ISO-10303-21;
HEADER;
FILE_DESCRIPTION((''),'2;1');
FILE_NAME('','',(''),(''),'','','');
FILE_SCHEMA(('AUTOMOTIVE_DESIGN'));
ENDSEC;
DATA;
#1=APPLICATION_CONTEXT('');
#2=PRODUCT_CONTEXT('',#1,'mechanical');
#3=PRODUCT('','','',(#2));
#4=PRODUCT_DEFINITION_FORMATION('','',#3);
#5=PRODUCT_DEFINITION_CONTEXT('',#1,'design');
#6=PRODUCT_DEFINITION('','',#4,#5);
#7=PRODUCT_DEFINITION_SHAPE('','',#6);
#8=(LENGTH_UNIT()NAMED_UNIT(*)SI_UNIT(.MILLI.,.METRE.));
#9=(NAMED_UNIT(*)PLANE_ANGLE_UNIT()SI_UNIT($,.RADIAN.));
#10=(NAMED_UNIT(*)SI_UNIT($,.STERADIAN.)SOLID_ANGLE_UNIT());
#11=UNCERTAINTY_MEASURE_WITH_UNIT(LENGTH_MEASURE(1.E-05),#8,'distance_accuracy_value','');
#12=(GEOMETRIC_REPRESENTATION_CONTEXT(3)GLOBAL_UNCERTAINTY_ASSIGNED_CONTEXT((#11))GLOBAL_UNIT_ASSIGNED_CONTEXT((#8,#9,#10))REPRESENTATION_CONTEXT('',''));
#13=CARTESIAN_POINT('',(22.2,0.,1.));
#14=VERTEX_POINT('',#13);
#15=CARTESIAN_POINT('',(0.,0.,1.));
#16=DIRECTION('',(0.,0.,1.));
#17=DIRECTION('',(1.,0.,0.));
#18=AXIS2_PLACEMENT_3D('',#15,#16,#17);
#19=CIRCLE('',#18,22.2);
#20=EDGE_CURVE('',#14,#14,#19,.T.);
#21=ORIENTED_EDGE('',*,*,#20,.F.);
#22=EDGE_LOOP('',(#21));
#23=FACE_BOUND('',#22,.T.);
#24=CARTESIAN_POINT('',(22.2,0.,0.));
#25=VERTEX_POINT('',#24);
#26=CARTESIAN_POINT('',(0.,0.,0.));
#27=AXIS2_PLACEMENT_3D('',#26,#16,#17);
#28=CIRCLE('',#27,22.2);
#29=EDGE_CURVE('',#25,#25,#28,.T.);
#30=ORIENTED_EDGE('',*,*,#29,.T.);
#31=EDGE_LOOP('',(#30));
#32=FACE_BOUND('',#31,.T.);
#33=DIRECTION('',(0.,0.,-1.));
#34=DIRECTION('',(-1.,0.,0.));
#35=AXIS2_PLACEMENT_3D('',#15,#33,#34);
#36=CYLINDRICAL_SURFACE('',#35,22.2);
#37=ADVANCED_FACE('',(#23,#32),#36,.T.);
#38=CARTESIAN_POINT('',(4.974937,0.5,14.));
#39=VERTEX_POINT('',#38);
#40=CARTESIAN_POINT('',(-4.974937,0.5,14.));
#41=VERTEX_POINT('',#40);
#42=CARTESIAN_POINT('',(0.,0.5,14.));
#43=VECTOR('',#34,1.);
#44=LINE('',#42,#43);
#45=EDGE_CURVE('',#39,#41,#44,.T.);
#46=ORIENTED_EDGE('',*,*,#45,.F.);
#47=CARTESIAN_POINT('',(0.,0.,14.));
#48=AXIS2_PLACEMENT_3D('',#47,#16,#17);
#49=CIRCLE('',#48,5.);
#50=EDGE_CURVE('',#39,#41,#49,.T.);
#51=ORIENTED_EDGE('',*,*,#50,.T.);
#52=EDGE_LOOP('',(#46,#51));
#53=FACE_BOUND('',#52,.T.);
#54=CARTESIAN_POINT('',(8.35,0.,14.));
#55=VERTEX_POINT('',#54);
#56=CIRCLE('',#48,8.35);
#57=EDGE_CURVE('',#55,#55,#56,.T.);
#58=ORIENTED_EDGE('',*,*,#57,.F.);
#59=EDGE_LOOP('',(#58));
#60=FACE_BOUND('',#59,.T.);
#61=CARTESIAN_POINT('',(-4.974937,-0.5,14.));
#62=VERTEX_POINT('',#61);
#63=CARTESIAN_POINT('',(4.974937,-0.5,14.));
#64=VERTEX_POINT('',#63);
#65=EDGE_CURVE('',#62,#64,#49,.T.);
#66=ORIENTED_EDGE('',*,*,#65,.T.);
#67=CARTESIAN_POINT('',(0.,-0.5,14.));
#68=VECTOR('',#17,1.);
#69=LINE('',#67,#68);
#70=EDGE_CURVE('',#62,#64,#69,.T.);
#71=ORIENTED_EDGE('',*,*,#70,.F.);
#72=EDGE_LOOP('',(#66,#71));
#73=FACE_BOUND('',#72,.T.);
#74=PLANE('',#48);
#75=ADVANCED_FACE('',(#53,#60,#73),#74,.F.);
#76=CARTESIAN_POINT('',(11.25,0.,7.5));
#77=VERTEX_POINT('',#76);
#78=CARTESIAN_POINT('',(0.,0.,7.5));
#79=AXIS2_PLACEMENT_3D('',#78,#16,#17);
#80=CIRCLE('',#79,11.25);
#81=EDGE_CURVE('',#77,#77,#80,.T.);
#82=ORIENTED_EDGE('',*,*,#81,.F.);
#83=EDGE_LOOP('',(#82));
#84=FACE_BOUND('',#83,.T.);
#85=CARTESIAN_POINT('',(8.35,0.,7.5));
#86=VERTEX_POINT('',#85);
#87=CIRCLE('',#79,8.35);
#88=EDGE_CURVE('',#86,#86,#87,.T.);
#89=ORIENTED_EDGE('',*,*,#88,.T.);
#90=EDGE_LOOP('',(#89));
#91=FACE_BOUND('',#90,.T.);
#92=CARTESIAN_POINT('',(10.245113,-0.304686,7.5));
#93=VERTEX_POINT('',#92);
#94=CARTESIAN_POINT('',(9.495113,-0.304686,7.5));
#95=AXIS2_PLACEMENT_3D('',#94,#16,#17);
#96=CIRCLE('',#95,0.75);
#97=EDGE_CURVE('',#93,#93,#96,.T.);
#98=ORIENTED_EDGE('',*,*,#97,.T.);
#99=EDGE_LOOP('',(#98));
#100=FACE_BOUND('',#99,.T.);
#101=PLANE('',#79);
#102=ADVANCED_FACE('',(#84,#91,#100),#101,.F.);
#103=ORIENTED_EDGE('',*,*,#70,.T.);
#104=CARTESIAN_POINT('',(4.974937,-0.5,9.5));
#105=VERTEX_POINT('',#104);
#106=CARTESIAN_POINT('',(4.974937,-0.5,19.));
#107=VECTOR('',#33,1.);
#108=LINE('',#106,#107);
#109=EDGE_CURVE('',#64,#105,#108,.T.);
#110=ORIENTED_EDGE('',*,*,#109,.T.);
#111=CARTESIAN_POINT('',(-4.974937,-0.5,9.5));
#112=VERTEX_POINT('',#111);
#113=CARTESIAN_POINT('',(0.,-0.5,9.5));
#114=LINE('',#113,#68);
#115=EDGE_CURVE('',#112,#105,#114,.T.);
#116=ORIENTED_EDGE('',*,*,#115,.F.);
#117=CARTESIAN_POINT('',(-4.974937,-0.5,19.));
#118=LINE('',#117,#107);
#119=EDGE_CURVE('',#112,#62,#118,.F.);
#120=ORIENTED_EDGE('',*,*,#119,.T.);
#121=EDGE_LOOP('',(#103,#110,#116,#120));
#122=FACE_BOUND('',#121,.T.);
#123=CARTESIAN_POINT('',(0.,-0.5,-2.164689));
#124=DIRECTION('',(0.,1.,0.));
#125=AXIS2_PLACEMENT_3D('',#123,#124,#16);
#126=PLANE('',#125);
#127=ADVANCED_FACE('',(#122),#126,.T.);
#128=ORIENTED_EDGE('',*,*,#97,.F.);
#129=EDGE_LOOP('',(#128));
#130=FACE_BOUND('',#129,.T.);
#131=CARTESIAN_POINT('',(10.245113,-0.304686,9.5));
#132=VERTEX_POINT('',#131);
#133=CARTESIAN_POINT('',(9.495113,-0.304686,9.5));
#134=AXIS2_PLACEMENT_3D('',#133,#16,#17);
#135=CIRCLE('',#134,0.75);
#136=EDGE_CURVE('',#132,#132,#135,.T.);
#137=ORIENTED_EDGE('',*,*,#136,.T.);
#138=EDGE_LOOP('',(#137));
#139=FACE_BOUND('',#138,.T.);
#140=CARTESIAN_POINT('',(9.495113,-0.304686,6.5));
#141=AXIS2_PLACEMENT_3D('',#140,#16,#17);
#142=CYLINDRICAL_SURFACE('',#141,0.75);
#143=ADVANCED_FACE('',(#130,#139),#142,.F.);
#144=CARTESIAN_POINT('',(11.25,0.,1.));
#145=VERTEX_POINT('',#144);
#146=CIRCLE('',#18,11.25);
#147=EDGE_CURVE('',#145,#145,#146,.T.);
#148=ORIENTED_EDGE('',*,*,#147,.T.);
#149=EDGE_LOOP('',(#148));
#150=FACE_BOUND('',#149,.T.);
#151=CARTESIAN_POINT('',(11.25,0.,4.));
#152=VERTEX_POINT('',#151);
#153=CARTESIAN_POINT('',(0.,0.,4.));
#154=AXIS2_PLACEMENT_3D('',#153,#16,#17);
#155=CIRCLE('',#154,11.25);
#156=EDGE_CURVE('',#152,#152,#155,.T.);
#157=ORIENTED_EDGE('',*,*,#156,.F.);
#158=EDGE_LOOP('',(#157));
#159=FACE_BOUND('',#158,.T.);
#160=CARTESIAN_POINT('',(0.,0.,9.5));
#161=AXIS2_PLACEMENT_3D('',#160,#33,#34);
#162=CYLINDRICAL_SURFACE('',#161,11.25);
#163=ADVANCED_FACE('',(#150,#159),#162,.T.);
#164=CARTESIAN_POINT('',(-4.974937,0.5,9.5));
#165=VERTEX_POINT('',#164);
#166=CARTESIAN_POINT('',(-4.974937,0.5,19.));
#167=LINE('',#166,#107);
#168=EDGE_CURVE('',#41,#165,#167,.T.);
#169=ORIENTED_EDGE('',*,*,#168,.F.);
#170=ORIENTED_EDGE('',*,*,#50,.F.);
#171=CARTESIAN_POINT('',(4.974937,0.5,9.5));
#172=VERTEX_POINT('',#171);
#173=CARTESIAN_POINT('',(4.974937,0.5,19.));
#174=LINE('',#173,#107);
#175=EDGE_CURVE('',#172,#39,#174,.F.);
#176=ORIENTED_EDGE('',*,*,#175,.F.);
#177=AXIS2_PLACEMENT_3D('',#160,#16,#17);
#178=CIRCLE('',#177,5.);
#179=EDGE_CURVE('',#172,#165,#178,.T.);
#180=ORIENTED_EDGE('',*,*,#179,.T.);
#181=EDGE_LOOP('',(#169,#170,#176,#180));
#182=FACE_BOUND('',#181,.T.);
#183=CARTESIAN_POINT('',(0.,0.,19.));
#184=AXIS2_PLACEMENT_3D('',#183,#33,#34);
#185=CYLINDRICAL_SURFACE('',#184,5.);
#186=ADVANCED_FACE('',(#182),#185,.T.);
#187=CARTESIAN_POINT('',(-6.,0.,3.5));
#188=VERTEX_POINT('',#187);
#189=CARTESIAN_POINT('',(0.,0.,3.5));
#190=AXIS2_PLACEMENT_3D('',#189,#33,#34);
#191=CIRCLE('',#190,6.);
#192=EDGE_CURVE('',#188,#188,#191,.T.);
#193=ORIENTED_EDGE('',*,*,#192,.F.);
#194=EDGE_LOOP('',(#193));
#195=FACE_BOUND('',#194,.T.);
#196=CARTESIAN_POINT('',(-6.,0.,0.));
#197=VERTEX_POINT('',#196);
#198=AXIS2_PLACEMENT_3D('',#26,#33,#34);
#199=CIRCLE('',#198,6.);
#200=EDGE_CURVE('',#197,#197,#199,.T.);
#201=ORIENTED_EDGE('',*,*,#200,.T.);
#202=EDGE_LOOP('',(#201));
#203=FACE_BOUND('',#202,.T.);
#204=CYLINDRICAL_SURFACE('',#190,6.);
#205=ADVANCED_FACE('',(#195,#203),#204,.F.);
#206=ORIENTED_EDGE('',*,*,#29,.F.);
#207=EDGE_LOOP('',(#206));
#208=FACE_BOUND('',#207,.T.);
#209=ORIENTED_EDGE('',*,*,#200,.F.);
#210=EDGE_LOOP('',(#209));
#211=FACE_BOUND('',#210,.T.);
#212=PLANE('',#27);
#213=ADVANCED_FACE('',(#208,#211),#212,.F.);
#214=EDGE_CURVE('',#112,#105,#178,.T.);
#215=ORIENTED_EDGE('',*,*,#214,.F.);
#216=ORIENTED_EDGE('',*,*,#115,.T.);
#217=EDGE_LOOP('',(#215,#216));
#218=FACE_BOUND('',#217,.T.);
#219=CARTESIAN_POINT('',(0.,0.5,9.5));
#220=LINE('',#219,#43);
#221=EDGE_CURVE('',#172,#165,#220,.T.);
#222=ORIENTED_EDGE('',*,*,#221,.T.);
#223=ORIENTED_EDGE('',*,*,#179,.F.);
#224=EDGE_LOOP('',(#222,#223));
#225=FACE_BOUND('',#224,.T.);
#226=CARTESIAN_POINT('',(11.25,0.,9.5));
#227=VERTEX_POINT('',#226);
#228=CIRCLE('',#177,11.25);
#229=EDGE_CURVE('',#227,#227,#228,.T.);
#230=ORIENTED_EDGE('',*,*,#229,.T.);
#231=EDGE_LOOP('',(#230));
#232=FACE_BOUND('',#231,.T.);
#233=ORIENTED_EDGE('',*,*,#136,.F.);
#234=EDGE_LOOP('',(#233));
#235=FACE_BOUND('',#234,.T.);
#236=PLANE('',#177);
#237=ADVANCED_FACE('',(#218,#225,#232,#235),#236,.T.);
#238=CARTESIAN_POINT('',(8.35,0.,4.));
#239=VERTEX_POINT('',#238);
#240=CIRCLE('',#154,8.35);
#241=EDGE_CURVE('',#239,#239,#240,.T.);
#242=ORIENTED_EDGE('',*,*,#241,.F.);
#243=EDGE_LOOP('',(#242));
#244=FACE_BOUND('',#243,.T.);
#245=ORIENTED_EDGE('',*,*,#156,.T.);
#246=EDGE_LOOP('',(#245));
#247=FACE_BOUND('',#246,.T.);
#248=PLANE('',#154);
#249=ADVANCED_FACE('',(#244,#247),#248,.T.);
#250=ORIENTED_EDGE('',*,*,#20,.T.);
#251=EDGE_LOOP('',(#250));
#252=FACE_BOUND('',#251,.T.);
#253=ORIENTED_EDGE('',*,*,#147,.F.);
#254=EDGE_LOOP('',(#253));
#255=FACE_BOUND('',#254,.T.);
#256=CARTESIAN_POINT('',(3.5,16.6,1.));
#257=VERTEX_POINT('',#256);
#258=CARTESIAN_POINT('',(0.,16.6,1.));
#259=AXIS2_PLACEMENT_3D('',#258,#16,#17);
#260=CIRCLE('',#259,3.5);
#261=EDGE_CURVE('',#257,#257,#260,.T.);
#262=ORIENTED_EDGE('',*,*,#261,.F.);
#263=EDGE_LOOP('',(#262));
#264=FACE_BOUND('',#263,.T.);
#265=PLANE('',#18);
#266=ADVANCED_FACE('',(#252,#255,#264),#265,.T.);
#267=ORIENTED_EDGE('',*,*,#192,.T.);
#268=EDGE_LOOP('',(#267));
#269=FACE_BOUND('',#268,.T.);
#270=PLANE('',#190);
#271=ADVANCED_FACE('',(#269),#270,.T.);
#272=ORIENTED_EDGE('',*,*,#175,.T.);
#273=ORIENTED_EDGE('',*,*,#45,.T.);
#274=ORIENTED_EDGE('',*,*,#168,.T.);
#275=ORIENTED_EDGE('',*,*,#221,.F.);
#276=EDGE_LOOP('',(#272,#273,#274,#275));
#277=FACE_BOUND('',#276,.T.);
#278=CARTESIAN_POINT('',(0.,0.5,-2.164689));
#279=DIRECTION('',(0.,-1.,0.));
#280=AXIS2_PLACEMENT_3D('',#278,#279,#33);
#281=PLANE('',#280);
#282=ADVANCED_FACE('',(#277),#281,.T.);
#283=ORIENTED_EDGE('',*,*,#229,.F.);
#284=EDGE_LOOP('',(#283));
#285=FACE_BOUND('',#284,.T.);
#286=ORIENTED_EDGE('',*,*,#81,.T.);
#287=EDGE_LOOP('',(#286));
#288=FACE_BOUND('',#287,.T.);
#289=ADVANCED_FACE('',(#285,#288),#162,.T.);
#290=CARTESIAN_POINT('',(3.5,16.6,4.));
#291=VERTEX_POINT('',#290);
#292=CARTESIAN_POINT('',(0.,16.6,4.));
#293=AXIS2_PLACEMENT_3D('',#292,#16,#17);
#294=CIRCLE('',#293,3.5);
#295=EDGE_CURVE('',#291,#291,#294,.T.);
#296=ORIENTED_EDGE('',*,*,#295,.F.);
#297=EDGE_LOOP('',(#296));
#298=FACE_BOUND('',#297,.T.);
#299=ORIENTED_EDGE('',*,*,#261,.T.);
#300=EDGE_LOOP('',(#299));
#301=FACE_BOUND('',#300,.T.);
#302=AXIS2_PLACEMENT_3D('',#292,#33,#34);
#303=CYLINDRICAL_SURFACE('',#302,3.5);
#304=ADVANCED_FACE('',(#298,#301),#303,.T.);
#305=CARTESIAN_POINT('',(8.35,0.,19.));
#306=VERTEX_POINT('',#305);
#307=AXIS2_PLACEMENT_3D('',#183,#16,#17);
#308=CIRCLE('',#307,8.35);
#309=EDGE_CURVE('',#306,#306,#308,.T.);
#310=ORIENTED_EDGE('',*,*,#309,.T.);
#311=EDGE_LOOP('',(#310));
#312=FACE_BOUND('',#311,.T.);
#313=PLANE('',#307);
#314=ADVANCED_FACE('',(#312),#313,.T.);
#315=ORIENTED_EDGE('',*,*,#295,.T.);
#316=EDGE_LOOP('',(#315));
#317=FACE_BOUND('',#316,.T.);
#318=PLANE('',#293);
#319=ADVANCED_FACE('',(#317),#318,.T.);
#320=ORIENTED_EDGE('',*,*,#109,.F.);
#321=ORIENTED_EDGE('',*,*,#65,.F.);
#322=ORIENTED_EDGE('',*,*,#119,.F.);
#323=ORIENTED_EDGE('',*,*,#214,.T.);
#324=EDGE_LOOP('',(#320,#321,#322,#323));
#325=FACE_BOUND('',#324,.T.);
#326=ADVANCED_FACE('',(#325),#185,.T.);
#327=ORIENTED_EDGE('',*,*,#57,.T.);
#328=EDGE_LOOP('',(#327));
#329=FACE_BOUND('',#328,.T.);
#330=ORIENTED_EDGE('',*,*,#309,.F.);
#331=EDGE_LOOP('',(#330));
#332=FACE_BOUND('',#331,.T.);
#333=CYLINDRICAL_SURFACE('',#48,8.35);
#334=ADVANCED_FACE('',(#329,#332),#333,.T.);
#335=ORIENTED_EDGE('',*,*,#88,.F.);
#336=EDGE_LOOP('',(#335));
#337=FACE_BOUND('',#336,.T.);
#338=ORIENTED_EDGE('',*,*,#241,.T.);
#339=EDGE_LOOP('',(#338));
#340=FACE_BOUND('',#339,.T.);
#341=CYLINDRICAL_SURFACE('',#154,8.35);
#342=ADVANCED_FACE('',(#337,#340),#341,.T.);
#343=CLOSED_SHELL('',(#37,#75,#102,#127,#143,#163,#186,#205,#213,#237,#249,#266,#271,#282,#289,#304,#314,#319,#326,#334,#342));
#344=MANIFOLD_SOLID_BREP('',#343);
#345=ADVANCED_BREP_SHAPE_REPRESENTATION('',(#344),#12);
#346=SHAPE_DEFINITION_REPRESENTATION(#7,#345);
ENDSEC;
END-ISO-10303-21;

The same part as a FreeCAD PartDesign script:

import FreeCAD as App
import Part
import Sketcher
Q = App.Units.Quantity

doc = App.newDocument("Part")
body = doc.addObject("PartDesign::Body", "Body")

# Sketch on XY plane
sketch1 = body.newObject("Sketcher::SketchObject", "Sketch")
sketch1.AttachmentSupport = (doc.getObject("XY_Plane"), [""])
sketch1.MapMode = "FlatFace"
sketch1.addGeometry(Part.Circle(App.Vector(0, 0, 0), App.Vector(0, 0, 1), 22), False)
sketch1.addConstraint(Sketcher.Constraint("Coincident", 0, 3, -1, 1))
sketch1.addConstraint(Sketcher.Constraint("Diameter", 0, Q("44.4 mm")))
pad1 = body.newObject("PartDesign::Pad", "Pad")
pad1.Profile = sketch1
pad1.Length = 1

# Sketch on XY plane
sketch2 = body.newObject("Sketcher::SketchObject", "Sketch001")
sketch2.AttachmentSupport = (doc.getObject("XY_Plane"), [""])
sketch2.MapMode = "FlatFace"
sketch2.AttachmentOffset = App.Placement(App.Vector(0, 0, 1), App.Rotation())
sketch2.addGeometry(Part.Circle(App.Vector(0, 0, 0), App.Vector(0, 0, 1), 11), False)
sketch2.addConstraint(Sketcher.Constraint("Coincident", 0, 3, -1, 1))
sketch2.addConstraint(Sketcher.Constraint("Diameter", 0, Q("22.5 mm")))
pad2 = body.newObject("PartDesign::Pad", "Pad001")
pad2.Profile = sketch2
pad2.Length = 8.5

# Sketch on XY plane
sketch3 = body.newObject("Sketcher::SketchObject", "Sketch002")
sketch3.AttachmentSupport = (doc.getObject("XY_Plane"), [""])
sketch3.MapMode = "FlatFace"
sketch3.AttachmentOffset = App.Placement(App.Vector(0, 0, 9.5), App.Rotation())
sketch3.addGeometry(Part.Circle(App.Vector(0, 0, 0), App.Vector(0, 0, 1), 5), False)
sketch3.addConstraint(Sketcher.Constraint("Coincident", 0, 3, -1, 1))
sketch3.addConstraint(Sketcher.Constraint("Diameter", 0, Q("10 mm")))
pad3 = body.newObject("PartDesign::Pad", "Pad002")
pad3.Profile = sketch3
pad3.Length = 9.5

# Sketch on XY plane
sketch4 = body.newObject("Sketcher::SketchObject", "Sketch003")
sketch4.AttachmentSupport = (doc.getObject("XY_Plane"), [""])
sketch4.MapMode = "FlatFace"
sketch4.AttachmentOffset = App.Placement(App.Vector(0, 0, 19), App.Rotation())
sketch4.addGeometry(Part.LineSegment(App.Vector(-5.8, 0.5, 0), App.Vector(-5.8, -0.5, 0)), False)
sketch4.addGeometry(Part.LineSegment(App.Vector(-5.8, -0.5, 0), App.Vector(5.8, -0.5, 0)), False)
sketch4.addGeometry(Part.LineSegment(App.Vector(5.8, -0.5, 0), App.Vector(5.8, 0.5, 0)), False)
sketch4.addGeometry(Part.LineSegment(App.Vector(5.8, 0.5, 0), App.Vector(-5.8, 0.5, 0)), False)
sketch4.addConstraint(Sketcher.Constraint("Coincident", 0, 2, 1, 1))
sketch4.addConstraint(Sketcher.Constraint("Coincident", 1, 2, 2, 1))
sketch4.addConstraint(Sketcher.Constraint("Coincident", 2, 2, 3, 1))
sketch4.addConstraint(Sketcher.Constraint("Coincident", 3, 2, 0, 1))
sketch4.addConstraint(Sketcher.Constraint("Vertical", 0))
sketch4.addConstraint(Sketcher.Constraint("Horizontal", 1))
sketch4.addConstraint(Sketcher.Constraint("Vertical", 2))
sketch4.addConstraint(Sketcher.Constraint("Horizontal", 3))
sketch4.addConstraint(Sketcher.Constraint("Symmetric", 0, 2, 2, 2, -1, 1))
sketch4.addConstraint(Sketcher.Constraint("DistanceY", 0, 2, 0, 1, Q("1 mm")))
sketch4.addConstraint(Sketcher.Constraint("DistanceX", 1, 1, 1, 2, Q("11.621746 mm")))
pocket1 = body.newObject("PartDesign::Pocket", "Pocket")
pocket1.Profile = sketch4
pocket1.Length = 9.5

# Sketch on XY plane
sketch5 = body.newObject("Sketcher::SketchObject", "Sketch004")
sketch5.AttachmentSupport = (doc.getObject("XY_Plane"), [""])
sketch5.MapMode = "FlatFace"
sketch5.AttachmentOffset = App.Placement(App.Vector(0, 0, 1), App.Rotation())
sketch5.addGeometry(Part.Circle(App.Vector(0, 16.6, 0), App.Vector(0, 0, 1), 3.5), False)
sketch5.addConstraint(Sketcher.Constraint("PointOnObject", 0, 3, -2))
sketch5.addConstraint(Sketcher.Constraint("Diameter", 0, Q("7 mm")))
sketch5.addConstraint(Sketcher.Constraint("DistanceY", -1, 1, 0, 3, Q("16.6 mm")))
pad4 = body.newObject("PartDesign::Pad", "Pad003")
pad4.Profile = sketch5
pad4.Length = 3

# Sketch on XY plane
sketch6 = body.newObject("Sketcher::SketchObject", "Sketch005")
sketch6.AttachmentSupport = (doc.getObject("XY_Plane"), [""])
sketch6.MapMode = "FlatFace"
sketch6.addGeometry(Part.Circle(App.Vector(0, 0, 0), App.Vector(0, 0, 1), 6), False)
sketch6.addConstraint(Sketcher.Constraint("Coincident", 0, 3, -1, 1))
sketch6.addConstraint(Sketcher.Constraint("Diameter", 0, Q("12 mm")))
pocket2 = body.newObject("PartDesign::Pocket", "Pocket001")
pocket2.Profile = sketch6
pocket2.Length = 3.5
pocket2.Reversed = True

# Sketch on XY plane
sketch7 = body.newObject("Sketcher::SketchObject", "Sketch006")
sketch7.AttachmentSupport = (doc.getObject("XY_Plane"), [""])
sketch7.MapMode = "FlatFace"
sketch7.AttachmentOffset = App.Placement(App.Vector(0, 0, 19), App.Rotation())
sketch7.addGeometry(Part.Circle(App.Vector(0, 0, 0), App.Vector(0, 0, 1), 8), False)
sketch7.addConstraint(Sketcher.Constraint("Coincident", 0, 3, -1, 1))
sketch7.addConstraint(Sketcher.Constraint("Diameter", 0, Q("16.7 mm")))
pad5 = body.newObject("PartDesign::Pad", "Pad004")
pad5.Profile = sketch7
pad5.Length = 5
pad5.Reversed = True

# Sketch on XY plane
sketch8 = body.newObject("Sketcher::SketchObject", "Sketch007")
sketch8.AttachmentSupport = (doc.getObject("XY_Plane"), [""])
sketch8.MapMode = "FlatFace"
sketch8.AttachmentOffset = App.Placement(App.Vector(0, 0, 7.5), App.Rotation())
sketch8.addGeometry(Part.Circle(App.Vector(0, 0, 0), App.Vector(0, 0, 1), 11), False)
sketch8.addGeometry(Part.Circle(App.Vector(0, 0, 0), App.Vector(0, 0, 1), 8), False)
sketch8.addConstraint(Sketcher.Constraint("Coincident", 0, 3, -1, 1))
sketch8.addConstraint(Sketcher.Constraint("Coincident", 1, 3, -1, 1))
sketch8.addConstraint(Sketcher.Constraint("Diameter", 0, Q("22.5 mm")))
sketch8.addConstraint(Sketcher.Constraint("Diameter", 1, Q("16.7 mm")))
pocket3 = body.newObject("PartDesign::Pocket", "Pocket002")
pocket3.Profile = sketch8
pocket3.Length = 3.5

# Sketch on XY plane
sketch9 = body.newObject("Sketcher::SketchObject", "Sketch008")
sketch9.AttachmentSupport = (doc.getObject("XY_Plane"), [""])
sketch9.MapMode = "FlatFace"
sketch9.AttachmentOffset = App.Placement(App.Vector(0, 0, 9.5), App.Rotation())
sketch9.addGeometry(Part.Circle(App.Vector(9.5, -0.3, 0), App.Vector(0, 0, 1), 0.8), False)
sketch9.addConstraint(Sketcher.Constraint("Diameter", 0, Q("1.5 mm")))
sketch9.addConstraint(Sketcher.Constraint("DistanceX", -1, 1, 0, 3, Q("9.495113 mm")))
sketch9.addConstraint(Sketcher.Constraint("DistanceY", 0, 3, -1, 1, Q("0.304686 mm")))
pocket4 = body.newObject("PartDesign::Pocket", "Pocket003")
pocket4.Profile = sketch9
pocket4.Length = 3

doc.recompute()
